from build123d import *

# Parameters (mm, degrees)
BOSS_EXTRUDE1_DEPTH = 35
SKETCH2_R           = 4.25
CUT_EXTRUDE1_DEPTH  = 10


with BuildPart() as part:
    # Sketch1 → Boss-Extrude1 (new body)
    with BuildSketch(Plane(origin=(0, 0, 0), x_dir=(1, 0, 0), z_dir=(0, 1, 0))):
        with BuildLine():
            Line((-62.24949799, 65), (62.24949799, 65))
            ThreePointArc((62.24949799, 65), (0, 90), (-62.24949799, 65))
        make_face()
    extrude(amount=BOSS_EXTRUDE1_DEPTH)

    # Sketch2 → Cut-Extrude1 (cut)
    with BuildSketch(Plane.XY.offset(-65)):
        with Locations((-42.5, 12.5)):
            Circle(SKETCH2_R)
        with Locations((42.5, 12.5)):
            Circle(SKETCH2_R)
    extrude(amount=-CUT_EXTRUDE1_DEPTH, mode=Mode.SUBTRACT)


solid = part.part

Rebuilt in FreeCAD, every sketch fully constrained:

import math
import FreeCAD as App
import Part
import Sketcher
from FreeCAD import Vector

doc = App.newDocument("Part")
params = doc.addObject("Spreadsheet::Sheet", "Params")
for row, (alias, value) in enumerate([
    ("sketch1_radius", "90 mm"),
    ("pad1_length", "35 mm"),
    ("sketch2_diameter", "8.5 mm"),
    ("pocket1_length", "10 mm"),
], start=1):
    params.set(f"A{row}", alias)
    params.set(f"B{row}", "=" + value)
    params.setAlias(f"B{row}", alias)

body = doc.addObject("PartDesign::Body", "Body")

# Sketch on XZ plane
sketch1 = body.newObject("Sketcher::SketchObject", "Sketch")
sketch1.AttachmentSupport = (doc.getObject("XZ_Plane"), [""])
sketch1.MapMode = "FlatFace"
sketch1.addGeometry([
    Part.LineSegment(Vector(-62, -65, 0), Vector(62, -65, 0)),
    Part.ArcOfCircle(Part.Circle(Vector(0, 0, 0), Vector(0, 0, 1), 90), math.radians(-134), math.radians(-46)),
], False)
sketch1.addConstraint([
    Sketcher.Constraint("Coincident", 0, 1, 1, 1),
    Sketcher.Constraint("Coincident", 1, 2, 0, 2),
    Sketcher.Constraint("Horizontal", 0),
    Sketcher.Constraint("Coincident", 1, 3, -1, 1),
    Sketcher.Constraint("Radius", 1, 90.0),
    Sketcher.Constraint("DistanceY", 0, 1, -1, 1, 65.0),
])
sketch1.setExpression("Constraints[4]", "Params.sketch1_radius")
pad1 = body.newObject("PartDesign::Pad", "Pad")
pad1.Profile = sketch1
pad1.setExpression("Length", "Params.pad1_length")
pad1.Reversed = True

# Sketch on XY plane
sketch2 = body.newObject("Sketcher::SketchObject", "Sketch001")
sketch2.AttachmentSupport = (doc.getObject("XY_Plane"), [""])
sketch2.MapMode = "FlatFace"
sketch2.AttachmentOffset = App.Placement(Vector(0, 0, -65), App.Rotation())
sketch2.addGeometry([
    Part.Circle(Vector(-42.5, 12.5, 0), Vector(0, 0, 1), 4.2),
    Part.Circle(Vector(42.5, 12.5, 0), Vector(0, 0, 1), 4.2),
], False)
sketch2.addConstraint([
    Sketcher.Constraint("Equal", 0, 1),
    Sketcher.Constraint("Symmetric", 0, 3, 1, 3, -2),
    Sketcher.Constraint("Diameter", 0, 8.5),
    Sketcher.Constraint("DistanceX", 0, 3, 1, 3, 85.0),
    Sketcher.Constraint("DistanceY", -1, 1, 0, 3, 12.5),
])
sketch2.setExpression("Constraints[2]", "Params.sketch2_diameter")
pocket1 = body.newObject("PartDesign::Pocket", "Pocket")
pocket1.Profile = sketch2
pocket1.setExpression("Length", "Params.pocket1_length")

doc.recompute()
